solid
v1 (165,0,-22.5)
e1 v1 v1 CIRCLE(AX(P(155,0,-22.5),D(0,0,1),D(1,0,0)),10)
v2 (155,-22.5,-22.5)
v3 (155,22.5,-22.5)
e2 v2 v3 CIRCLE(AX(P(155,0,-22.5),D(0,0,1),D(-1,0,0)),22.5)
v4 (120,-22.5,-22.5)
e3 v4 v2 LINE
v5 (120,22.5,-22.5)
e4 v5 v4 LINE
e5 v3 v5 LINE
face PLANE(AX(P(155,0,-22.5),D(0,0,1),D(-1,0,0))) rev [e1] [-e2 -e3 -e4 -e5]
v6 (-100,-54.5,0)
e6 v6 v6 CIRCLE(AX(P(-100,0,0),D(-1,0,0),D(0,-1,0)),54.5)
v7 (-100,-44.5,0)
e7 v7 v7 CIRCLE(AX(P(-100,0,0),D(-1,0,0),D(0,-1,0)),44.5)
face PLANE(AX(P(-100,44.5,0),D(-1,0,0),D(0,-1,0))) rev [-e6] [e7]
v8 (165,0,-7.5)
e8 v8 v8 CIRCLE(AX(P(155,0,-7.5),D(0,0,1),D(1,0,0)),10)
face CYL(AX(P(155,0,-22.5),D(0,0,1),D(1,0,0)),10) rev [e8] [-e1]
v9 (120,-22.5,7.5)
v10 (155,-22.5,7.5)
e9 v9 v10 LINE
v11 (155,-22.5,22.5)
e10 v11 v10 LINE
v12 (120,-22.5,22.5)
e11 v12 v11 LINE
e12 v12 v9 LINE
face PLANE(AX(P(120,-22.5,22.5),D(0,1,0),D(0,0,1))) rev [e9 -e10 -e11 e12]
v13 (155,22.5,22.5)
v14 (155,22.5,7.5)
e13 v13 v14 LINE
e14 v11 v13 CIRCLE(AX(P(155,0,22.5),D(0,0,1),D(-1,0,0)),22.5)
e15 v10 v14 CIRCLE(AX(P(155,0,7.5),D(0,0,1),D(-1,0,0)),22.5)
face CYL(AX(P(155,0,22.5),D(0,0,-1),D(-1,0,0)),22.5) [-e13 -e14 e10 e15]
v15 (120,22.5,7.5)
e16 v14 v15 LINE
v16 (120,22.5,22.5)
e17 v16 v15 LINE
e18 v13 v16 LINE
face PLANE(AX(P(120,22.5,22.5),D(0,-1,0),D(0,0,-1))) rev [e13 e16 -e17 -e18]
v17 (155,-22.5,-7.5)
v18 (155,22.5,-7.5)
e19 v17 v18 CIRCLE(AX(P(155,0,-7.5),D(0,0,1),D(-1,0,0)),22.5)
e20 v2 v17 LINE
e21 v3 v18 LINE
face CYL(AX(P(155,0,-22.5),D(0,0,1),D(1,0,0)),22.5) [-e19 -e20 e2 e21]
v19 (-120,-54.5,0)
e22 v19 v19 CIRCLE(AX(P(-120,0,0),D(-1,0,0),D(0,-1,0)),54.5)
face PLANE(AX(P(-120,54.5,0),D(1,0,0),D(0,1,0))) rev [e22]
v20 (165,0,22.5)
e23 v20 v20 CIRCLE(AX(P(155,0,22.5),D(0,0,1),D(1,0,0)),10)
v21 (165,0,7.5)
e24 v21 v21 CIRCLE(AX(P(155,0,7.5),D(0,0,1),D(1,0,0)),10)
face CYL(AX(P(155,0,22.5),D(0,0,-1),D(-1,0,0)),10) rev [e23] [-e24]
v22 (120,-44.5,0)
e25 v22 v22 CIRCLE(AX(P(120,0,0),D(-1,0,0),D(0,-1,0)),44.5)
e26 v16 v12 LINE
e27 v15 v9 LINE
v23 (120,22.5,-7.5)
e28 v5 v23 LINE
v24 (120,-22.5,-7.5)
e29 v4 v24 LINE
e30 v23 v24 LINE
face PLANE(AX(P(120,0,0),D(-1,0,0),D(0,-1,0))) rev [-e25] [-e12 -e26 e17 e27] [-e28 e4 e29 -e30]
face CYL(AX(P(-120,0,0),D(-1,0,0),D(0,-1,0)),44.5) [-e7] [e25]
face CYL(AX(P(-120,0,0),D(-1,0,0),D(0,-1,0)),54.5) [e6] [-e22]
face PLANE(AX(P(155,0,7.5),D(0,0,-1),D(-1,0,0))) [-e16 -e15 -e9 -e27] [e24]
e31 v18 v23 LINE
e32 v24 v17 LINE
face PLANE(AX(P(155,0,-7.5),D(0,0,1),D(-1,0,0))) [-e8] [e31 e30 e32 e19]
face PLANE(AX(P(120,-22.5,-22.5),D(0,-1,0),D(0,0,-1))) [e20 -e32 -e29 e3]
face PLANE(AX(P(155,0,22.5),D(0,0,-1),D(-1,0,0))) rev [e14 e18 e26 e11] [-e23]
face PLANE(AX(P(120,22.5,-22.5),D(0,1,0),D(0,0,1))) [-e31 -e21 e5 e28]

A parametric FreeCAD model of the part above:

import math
import FreeCAD as App
import Part
import Sketcher

V = App.Vector
Q = App.Units.Quantity


def add_polygon(sketch, points):
    """Adds a closed chain of lines whose ends are joined by coincident constraints."""
    first, n = sketch.GeometryCount, len(points)
    for a, b in zip(points, points[1:] + points[:1]):
        sketch.addGeometry(Part.LineSegment(App.Vector(*a, 0), App.Vector(*b, 0)), False)
    for i in range(n):
        sketch.addConstraint(Sketcher.Constraint("Coincident", first + i, 2, first + (i + 1) % n, 1))

doc = App.newDocument("Part")
body = doc.addObject("PartDesign::Body", "Body")

sketch1 = doc.addObject("Sketcher::SketchObject", "Sketch")
body.addObject(sketch1)
sketch1.AttachmentSupport = (doc.XY_Plane, [""])
sketch1.MapMode = "FlatFace"
add_polygon(sketch1, [(-120, 0), (120, 0), (120, 44), (-100, 44), (-100, 54), (-120, 54)])
sketch1.addConstraint([
    Sketcher.Constraint("Horizontal", 0),
    Sketcher.Constraint("Vertical", 1),
    Sketcher.Constraint("Horizontal", 2),
    Sketcher.Constraint("Vertical", 3),
    Sketcher.Constraint("Horizontal", 4),
    Sketcher.Constraint("Vertical", 5),
    Sketcher.Constraint("Symmetric", 0, 2, 5, 2, -1, 1),
    Sketcher.Constraint("DistanceX", 0, 1, 0, 2, Q("240 mm")),
    Sketcher.Constraint("DistanceX", 2, 2, 2, 1, Q("220 mm")),
    Sketcher.Constraint("DistanceY", 3, 1, 3, 2, Q("10 mm")),
    Sketcher.Constraint("DistanceY", 1, 1, 1, 2, Q("44.5 mm")),
])
revolution = doc.addObject("PartDesign::Revolution", "Revolution")
body.addObject(revolution)
revolution.Profile = sketch1
revolution.ReferenceAxis = (sketch1, ["H_Axis"])
revolution.Angle = 360

sketch2 = doc.addObject("Sketcher::SketchObject", "Sketch001")
body.addObject(sketch2)
sketch2.AttachmentSupport = (doc.XY_Plane, [""])
sketch2.MapMode = "FlatFace"
sketch2.AttachmentOffset = App.Placement(V(0, 0, 7.5), App.Rotation())
sketch2.addGeometry([
    Part.LineSegment(V(155, 22, 0), V(120, 22, 0)),
    Part.LineSegment(V(120, 22, 0), V(120, -22, 0)),
    Part.LineSegment(V(120, -22, 0), V(155, -22, 0)),
    Part.ArcOfCircle(Part.Circle(V(155, 0, 0), V(0, 0, 1), 22), math.radians(-90), math.radians(90)),
    Part.Circle(V(155, 0, 0), V(0, 0, 1), 10),
], False)
sketch2.addConstraint([
    Sketcher.Constraint("Coincident", 0, 2, 1, 1),
    Sketcher.Constraint("Coincident", 1, 2, 2, 1),
    Sketcher.Constraint("Tangent", 2, 2, 3, 1),
    Sketcher.Constraint("Tangent", 3, 2, 0, 1),
    Sketcher.Constraint("Horizontal", 0),
    Sketcher.Constraint("Vertical", 1),
    Sketcher.Constraint("Horizontal", 2),
    Sketcher.Constraint("Coincident", 4, 3, 3, 3),
    Sketcher.Constraint("PointOnObject", 3, 3, -1),
    Sketcher.Constraint("Diameter", 4, Q("20 mm")),
    Sketcher.Constraint("Radius", 3, Q("22.5 mm")),
    Sketcher.Constraint("DistanceX", 0, 2, 0, 1, Q("35 mm")),
    Sketcher.Constraint("DistanceX", -1, 1, 3, 3, Q("155 mm")),
])
pad1 = doc.addObject("PartDesign::Pad", "Pad")
body.addObject(pad1)
pad1.Profile = sketch2
pad1.Length = 15
doc.recompute()

mirrored = doc.addObject("PartDesign::Mirrored", "Mirrored")
body.addObject(mirrored)
mirrored.Originals = [pad1]
mirrored.MirrorPlane = (doc.XY_Plane, [""])
body.Tip = mirrored

doc.recompute()
